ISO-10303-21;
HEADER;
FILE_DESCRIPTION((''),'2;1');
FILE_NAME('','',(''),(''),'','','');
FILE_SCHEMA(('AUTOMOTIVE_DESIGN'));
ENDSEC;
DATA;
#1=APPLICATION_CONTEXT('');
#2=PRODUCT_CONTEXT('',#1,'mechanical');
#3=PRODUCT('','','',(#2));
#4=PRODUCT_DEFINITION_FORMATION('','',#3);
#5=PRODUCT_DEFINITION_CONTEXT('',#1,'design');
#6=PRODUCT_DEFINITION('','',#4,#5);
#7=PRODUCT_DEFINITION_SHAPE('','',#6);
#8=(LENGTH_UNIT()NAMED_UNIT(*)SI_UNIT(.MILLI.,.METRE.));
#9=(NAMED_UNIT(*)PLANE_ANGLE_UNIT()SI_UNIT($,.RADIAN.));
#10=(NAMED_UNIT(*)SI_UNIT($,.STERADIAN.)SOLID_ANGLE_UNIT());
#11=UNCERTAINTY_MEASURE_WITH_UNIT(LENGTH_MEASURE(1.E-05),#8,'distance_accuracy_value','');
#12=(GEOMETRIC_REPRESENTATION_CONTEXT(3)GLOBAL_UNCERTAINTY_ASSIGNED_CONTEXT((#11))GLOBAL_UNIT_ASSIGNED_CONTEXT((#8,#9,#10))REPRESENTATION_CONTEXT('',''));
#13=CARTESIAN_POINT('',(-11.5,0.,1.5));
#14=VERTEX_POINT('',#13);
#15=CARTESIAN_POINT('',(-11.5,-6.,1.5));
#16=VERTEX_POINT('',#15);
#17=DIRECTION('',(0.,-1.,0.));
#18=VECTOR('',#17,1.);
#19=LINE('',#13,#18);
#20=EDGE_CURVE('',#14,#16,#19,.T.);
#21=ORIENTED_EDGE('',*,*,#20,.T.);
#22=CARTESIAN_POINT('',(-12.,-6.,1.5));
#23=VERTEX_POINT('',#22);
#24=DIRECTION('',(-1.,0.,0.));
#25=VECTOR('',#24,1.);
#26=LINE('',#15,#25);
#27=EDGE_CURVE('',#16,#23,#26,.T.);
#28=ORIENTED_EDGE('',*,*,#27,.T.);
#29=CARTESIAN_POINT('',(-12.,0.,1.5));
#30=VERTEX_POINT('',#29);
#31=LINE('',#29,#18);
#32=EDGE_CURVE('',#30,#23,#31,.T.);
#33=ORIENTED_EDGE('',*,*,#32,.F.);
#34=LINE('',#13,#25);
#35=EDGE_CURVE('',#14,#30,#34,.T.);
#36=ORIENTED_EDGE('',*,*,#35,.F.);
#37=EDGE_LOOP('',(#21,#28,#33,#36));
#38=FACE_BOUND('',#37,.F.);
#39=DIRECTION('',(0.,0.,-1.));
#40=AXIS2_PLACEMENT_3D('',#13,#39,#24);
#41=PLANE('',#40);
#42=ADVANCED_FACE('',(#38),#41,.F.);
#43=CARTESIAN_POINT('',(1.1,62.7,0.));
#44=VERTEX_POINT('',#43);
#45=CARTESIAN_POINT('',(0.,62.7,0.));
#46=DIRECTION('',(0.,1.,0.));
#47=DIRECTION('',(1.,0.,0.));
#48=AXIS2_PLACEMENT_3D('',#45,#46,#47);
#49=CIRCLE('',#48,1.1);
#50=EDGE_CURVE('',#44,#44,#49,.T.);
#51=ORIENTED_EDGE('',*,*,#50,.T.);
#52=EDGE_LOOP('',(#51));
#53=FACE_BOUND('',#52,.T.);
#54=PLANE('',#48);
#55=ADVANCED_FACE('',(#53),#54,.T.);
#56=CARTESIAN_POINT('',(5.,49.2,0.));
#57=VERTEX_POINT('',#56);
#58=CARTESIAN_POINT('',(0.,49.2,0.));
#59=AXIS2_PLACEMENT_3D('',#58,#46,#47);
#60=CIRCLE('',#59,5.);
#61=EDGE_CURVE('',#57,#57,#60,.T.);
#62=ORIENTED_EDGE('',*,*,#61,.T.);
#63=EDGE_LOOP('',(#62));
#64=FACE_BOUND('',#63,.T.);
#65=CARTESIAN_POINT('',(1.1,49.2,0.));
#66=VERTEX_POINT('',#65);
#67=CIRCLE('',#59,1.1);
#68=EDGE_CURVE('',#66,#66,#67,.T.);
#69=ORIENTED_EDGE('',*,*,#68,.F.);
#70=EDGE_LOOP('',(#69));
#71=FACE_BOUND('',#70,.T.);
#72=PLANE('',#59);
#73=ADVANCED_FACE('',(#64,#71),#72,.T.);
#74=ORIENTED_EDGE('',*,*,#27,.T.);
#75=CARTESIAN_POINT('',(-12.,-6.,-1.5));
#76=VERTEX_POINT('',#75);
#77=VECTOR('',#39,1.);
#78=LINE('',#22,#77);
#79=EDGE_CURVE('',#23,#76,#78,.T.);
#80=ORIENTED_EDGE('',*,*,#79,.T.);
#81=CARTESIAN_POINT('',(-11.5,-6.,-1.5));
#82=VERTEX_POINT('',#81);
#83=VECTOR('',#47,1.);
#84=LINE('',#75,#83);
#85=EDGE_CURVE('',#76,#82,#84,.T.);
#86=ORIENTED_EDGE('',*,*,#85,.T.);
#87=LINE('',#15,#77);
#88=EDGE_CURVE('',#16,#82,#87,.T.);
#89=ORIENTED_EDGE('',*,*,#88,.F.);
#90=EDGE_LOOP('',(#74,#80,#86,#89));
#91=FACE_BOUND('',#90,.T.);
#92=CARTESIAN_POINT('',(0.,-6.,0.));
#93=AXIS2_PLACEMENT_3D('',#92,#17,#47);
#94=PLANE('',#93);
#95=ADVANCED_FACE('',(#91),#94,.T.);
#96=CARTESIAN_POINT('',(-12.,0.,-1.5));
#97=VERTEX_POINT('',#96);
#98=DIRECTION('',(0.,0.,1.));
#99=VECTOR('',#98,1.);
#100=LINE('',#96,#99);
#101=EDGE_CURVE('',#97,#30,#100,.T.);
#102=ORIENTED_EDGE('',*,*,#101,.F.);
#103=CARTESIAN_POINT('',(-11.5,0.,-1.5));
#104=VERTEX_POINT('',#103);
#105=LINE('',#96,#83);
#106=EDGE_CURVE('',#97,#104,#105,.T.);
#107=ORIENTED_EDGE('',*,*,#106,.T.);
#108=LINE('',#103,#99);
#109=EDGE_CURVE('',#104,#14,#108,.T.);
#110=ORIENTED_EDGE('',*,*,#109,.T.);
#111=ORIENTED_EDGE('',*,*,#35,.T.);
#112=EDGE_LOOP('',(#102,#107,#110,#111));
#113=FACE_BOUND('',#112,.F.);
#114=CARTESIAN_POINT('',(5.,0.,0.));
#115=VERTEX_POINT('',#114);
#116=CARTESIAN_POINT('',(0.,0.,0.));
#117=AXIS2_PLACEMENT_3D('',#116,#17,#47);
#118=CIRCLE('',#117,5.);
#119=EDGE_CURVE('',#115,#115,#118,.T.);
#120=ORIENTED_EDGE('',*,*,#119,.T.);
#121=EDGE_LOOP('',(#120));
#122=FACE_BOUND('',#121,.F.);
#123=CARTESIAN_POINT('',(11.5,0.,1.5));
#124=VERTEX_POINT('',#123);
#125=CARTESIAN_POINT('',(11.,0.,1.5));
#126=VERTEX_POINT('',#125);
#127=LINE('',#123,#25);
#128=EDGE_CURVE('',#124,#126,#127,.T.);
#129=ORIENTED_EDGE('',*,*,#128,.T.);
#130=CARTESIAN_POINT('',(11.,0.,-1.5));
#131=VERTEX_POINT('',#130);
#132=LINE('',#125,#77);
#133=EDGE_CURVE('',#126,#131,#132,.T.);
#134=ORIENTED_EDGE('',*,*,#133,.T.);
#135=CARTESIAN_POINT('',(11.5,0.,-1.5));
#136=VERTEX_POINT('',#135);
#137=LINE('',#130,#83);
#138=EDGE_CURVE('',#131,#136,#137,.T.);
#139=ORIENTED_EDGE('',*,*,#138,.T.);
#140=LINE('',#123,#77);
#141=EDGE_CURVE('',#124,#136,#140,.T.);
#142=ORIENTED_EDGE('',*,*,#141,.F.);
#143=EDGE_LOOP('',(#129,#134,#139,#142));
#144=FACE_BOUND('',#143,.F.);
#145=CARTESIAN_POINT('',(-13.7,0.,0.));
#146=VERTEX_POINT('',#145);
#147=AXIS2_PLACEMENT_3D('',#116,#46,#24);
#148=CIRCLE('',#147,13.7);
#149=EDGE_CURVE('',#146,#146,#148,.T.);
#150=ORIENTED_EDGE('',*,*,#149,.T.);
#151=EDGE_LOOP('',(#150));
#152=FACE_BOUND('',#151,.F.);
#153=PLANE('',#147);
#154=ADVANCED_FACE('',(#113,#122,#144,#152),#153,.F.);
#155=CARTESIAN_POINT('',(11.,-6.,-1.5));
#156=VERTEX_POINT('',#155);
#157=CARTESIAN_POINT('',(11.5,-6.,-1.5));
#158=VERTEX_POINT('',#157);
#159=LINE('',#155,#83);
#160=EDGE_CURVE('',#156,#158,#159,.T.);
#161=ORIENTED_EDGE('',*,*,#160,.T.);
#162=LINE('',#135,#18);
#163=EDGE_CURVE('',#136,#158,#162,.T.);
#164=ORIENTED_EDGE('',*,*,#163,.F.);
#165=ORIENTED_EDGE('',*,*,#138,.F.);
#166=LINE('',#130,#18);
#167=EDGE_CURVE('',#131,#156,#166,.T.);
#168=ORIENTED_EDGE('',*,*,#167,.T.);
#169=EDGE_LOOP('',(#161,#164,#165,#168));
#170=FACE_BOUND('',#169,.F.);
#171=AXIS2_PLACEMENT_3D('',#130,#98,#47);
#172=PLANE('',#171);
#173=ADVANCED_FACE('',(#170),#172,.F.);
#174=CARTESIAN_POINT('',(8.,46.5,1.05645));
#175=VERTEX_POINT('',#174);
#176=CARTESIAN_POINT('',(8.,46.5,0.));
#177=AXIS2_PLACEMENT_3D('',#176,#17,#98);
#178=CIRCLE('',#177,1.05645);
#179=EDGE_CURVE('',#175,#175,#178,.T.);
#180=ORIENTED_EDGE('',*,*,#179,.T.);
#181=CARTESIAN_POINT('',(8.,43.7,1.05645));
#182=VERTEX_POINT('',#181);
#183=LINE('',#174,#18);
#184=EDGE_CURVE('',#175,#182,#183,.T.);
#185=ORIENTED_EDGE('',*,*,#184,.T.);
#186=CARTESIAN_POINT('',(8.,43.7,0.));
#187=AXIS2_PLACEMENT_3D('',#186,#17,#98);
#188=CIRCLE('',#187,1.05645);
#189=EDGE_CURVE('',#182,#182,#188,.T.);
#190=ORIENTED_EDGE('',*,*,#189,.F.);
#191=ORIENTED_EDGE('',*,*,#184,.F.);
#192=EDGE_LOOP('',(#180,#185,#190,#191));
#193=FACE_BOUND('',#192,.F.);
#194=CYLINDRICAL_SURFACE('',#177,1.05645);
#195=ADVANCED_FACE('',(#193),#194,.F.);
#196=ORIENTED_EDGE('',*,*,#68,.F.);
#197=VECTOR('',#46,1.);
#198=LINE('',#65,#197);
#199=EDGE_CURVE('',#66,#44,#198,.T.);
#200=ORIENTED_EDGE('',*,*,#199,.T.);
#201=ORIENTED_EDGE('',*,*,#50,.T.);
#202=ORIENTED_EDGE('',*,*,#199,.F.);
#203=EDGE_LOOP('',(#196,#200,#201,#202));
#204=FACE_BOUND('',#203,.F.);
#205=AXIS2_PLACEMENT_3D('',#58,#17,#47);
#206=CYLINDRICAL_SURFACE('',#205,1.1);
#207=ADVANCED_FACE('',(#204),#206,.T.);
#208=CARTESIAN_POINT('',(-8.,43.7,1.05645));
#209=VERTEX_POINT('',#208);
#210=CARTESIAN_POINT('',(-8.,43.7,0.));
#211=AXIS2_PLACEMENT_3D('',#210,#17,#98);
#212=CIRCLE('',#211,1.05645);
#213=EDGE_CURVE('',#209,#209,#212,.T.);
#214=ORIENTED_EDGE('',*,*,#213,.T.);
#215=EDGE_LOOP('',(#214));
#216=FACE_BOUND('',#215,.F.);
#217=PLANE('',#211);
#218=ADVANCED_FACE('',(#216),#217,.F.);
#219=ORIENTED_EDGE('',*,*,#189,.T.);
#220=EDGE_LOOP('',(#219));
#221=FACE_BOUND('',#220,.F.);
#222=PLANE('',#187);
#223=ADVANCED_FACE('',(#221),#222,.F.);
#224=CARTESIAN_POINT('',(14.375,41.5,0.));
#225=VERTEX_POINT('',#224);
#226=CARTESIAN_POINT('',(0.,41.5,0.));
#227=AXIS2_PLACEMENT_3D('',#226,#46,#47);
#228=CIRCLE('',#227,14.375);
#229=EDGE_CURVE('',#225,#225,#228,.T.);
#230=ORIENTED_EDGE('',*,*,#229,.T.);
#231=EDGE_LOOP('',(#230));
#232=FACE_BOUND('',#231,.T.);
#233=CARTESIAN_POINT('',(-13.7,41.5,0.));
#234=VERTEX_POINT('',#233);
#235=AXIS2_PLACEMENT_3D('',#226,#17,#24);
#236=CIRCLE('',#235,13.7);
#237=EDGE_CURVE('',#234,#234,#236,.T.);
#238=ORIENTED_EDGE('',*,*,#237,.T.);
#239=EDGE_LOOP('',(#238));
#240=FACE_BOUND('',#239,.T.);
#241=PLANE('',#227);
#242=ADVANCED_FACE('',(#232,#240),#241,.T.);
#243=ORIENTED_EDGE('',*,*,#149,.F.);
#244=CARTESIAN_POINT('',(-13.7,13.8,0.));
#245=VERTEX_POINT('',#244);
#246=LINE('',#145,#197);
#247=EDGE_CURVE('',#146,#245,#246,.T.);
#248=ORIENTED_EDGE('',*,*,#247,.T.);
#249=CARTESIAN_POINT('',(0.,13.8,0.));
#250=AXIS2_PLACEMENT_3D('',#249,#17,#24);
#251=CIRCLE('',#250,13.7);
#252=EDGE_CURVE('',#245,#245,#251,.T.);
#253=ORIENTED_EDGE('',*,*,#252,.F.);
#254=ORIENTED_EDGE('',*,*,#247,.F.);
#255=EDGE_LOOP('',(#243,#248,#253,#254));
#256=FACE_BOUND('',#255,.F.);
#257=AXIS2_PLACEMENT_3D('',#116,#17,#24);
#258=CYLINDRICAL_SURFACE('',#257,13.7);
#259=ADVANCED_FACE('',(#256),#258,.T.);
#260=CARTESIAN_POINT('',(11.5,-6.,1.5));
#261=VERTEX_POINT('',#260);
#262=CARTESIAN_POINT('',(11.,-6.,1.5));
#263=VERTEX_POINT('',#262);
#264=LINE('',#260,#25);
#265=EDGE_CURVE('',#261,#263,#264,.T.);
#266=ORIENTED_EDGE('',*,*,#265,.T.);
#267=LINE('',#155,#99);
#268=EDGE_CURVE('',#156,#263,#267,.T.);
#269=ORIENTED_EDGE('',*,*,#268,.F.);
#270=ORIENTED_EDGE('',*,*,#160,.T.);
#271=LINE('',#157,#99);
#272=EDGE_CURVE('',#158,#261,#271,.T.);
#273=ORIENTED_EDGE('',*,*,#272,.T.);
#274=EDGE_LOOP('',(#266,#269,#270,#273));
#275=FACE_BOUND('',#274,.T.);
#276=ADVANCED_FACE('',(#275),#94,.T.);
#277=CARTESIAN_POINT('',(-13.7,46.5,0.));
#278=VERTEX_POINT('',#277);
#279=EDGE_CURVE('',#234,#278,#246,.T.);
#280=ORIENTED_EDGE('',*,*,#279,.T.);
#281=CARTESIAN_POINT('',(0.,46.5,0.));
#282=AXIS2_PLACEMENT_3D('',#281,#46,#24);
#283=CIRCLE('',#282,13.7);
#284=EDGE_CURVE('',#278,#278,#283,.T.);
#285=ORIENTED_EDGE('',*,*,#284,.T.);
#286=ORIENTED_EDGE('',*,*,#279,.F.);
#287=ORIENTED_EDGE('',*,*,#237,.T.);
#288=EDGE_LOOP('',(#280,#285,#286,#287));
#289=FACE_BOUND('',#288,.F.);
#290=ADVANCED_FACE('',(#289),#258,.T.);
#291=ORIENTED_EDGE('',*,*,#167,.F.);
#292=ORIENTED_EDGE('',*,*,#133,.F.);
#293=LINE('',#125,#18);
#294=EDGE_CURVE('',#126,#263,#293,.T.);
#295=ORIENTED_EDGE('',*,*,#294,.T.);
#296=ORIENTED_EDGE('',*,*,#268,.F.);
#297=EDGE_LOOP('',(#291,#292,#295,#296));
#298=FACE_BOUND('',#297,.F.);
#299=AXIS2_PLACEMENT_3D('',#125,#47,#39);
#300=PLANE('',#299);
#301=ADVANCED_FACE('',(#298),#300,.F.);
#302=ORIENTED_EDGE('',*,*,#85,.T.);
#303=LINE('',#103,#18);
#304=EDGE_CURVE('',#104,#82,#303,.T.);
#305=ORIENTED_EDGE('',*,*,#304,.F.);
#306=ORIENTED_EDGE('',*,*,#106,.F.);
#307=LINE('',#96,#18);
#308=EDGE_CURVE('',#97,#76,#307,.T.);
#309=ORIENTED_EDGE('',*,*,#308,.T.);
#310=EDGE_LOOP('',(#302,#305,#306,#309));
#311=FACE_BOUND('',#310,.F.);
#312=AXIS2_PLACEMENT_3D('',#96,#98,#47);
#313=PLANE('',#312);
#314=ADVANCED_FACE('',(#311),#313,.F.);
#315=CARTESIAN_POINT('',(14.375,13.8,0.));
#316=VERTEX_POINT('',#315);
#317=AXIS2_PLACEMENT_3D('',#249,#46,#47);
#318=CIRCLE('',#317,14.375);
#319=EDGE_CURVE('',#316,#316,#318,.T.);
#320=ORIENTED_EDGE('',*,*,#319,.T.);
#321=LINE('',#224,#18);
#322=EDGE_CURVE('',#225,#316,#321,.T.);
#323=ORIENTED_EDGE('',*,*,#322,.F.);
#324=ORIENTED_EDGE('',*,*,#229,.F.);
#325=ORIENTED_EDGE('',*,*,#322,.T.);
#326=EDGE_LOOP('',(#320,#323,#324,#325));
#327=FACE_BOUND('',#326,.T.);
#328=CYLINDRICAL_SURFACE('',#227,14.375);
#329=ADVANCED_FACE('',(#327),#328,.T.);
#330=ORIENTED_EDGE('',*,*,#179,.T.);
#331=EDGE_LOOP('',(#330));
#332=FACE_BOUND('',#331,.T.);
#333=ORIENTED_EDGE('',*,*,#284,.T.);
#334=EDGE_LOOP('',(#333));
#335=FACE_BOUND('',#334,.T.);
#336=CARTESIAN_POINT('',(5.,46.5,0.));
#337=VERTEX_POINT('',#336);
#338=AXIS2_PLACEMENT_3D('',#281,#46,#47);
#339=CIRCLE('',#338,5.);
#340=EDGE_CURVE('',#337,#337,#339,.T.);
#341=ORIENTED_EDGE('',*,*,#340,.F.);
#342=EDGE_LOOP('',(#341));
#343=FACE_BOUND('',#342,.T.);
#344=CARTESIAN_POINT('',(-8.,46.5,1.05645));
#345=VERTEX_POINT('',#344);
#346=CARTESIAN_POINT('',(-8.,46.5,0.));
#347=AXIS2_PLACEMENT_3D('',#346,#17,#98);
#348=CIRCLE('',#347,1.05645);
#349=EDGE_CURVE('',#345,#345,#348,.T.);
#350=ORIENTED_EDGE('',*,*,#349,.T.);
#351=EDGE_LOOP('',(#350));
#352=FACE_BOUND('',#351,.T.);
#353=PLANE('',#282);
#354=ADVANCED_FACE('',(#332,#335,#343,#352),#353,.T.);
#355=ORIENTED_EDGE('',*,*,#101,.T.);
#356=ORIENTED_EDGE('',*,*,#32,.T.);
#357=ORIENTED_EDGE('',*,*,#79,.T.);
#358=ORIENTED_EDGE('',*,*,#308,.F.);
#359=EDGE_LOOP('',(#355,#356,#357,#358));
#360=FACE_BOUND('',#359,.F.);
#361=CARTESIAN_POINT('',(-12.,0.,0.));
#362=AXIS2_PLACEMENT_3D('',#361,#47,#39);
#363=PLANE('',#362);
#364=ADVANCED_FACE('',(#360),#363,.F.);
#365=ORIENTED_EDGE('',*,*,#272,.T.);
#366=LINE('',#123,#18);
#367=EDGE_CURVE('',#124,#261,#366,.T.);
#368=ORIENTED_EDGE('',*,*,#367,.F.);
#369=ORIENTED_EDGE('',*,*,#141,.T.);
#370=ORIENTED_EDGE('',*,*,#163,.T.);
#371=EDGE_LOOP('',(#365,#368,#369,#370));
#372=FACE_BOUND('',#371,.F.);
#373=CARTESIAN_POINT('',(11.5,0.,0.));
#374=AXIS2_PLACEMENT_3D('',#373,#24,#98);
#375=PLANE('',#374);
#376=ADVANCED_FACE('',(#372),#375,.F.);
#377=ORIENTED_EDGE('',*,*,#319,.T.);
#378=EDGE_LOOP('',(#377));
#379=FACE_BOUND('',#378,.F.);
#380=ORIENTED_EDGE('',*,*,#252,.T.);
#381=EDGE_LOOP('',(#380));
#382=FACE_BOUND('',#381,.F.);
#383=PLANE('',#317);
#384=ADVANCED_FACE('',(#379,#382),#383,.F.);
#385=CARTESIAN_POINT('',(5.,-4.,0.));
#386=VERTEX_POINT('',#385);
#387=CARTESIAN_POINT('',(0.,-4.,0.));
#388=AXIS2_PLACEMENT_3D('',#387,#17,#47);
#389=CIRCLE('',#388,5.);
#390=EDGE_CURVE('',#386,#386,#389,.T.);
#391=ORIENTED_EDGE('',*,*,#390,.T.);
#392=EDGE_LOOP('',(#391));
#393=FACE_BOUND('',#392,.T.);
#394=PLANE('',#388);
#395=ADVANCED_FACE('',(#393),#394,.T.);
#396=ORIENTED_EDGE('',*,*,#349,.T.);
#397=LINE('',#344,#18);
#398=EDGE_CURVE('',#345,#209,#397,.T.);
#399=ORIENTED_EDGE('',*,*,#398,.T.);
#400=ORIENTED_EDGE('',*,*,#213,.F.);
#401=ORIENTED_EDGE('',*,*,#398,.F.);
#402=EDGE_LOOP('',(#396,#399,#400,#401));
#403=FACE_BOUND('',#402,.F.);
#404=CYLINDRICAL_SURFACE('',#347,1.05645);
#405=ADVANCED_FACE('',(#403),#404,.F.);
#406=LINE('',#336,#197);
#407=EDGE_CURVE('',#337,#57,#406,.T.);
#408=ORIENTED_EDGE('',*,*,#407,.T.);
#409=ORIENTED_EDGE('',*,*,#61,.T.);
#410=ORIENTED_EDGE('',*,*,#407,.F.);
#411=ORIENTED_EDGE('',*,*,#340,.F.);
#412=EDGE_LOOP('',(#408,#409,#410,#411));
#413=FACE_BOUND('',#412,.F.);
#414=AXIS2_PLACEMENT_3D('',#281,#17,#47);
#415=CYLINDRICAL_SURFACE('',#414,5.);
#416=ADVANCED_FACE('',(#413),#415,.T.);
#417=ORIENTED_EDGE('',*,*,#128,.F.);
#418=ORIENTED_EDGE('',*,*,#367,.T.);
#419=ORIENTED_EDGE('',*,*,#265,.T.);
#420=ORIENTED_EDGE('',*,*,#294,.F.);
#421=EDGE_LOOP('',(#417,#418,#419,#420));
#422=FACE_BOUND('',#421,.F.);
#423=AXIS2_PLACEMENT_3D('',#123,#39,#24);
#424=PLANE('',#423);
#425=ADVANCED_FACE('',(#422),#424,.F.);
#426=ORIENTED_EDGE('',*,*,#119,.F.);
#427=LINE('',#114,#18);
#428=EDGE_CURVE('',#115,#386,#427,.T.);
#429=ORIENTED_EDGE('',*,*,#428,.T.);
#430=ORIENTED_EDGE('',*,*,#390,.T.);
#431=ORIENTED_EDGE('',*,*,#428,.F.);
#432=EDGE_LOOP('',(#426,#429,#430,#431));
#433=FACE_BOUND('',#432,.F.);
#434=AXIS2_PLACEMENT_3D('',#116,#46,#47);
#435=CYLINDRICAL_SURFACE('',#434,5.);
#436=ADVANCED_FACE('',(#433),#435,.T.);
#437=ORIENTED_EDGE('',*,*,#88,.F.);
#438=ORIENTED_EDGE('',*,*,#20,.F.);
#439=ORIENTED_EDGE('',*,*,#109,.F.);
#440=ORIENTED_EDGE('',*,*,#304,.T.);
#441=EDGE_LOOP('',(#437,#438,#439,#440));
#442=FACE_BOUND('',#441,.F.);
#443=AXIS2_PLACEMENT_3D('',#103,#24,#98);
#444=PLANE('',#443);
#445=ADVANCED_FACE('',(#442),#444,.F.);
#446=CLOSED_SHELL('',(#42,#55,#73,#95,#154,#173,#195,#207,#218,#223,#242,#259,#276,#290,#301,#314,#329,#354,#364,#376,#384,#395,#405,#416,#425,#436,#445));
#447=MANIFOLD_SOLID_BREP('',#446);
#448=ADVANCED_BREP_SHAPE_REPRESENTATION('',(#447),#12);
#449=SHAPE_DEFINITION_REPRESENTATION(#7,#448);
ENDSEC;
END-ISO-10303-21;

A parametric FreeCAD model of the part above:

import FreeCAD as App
import Part
import Sketcher
from FreeCAD import Vector
Q = App.Units.Quantity


def add_polygon(sketch, points):
    """Adds a closed chain of lines whose ends are joined by coincident constraints."""
    first, n = sketch.GeometryCount, len(points)
    for a, b in zip(points, points[1:] + points[:1]):
        sketch.addGeometry(Part.LineSegment(App.Vector(*a, 0), App.Vector(*b, 0)), False)
    for i in range(n):
        sketch.addConstraint(Sketcher.Constraint("Coincident", first + i, 2, first + (i + 1) % n, 1))

doc = App.newDocument("Part")
params = doc.addObject("Spreadsheet::Sheet", "Params")
for row, (alias, value) in enumerate([
    ("sketch1_diameter", "27.4 mm"),
    ("pad1_length", "46.5 mm"),
    ("sketch2_diameter", "10 mm"),
    ("pad2_length", "2.7 mm"),
    ("hole_diameter", "2.1129 mm"),
    ("hole_depth", "2.8 mm"),
    ("sketch4_diameter", "28.75 mm"),
    ("pad3_length", "27.7 mm"),
    ("sketch5_diameter", "10 mm"),
    ("pad4_length", "4 mm"),
    ("sketch6_height", "3 mm"),
    ("sketch6_width", "0.5 mm"),
    ("pad5_length", "6 mm"),
    ("sketch7_diameter", "2.2 mm"),
    ("pad6_length", "13.5 mm"),
], start=1):
    params.set(f"A{row}", alias)
    params.set(f"B{row}", "=" + value)
    params.setAlias(f"B{row}", alias)

body = doc.addObject("PartDesign::Body", "Body")

sketch1 = body.newObject("Sketcher::SketchObject", "Sketch")
sketch1.AttachmentSupport = (doc.getObject("XZ_Plane"), [""])
sketch1.MapMode = "FlatFace"
sketch1.addGeometry(Part.Circle(Vector(0, 0, 0), Vector(0, 0, 1), 14), False)
sketch1.addConstraint([
    Sketcher.Constraint("Coincident", 0, 3, -1, 1),
    Sketcher.Constraint("Diameter", 0, Q("27.4 mm")),
])
sketch1.setExpression("Constraints[1]", "Params.sketch1_diameter")
pad1 = body.newObject("PartDesign::Pad", "Pad")
pad1.Profile = sketch1
pad1.setExpression("Length", "Params.pad1_length")
pad1.Reversed = True

sketch2 = body.newObject("Sketcher::SketchObject", "Sketch001")
sketch2.AttachmentSupport = (doc.getObject("XZ_Plane"), [""])
sketch2.MapMode = "FlatFace"
sketch2.AttachmentOffset = App.Placement(Vector(0, 0, -46.5), App.Rotation())
sketch2.addGeometry(Part.Circle(Vector(0, 0, 0), Vector(0, 0, 1), 5), False)
sketch2.addConstraint([
    Sketcher.Constraint("Coincident", 0, 3, -1, 1),
    Sketcher.Constraint("Diameter", 0, Q("10 mm")),
])
sketch2.setExpression("Constraints[1]", "Params.sketch2_diameter")
pad2 = body.newObject("PartDesign::Pad", "Pad001")
pad2.Profile = sketch2
pad2.setExpression("Length", "Params.pad2_length")
pad2.Reversed = True

sketch3 = body.newObject("Sketcher::SketchObject", "Sketch002")
sketch3.AttachmentSupport = (doc.getObject("XZ_Plane"), [""])
sketch3.MapMode = "FlatFace"
sketch3.AttachmentOffset = App.Placement(Vector(0, 0, -46.5), App.Rotation())
sketch3.addGeometry([
    Part.Circle(Vector(-8, 0, 0), Vector(0, 0, 1), 1.1),
    Part.Circle(Vector(8, 0, 0), Vector(0, 0, 1), 1.1),
], False)
sketch3.addConstraint([
    Sketcher.Constraint("Equal", 0, 1),
    Sketcher.Constraint("Symmetric", 0, 3, 1, 3, -1, 1),
    Sketcher.Constraint("PointOnObject", 0, 3, -1),
    Sketcher.Constraint("Diameter", 0, Q("2.113 mm")),
    Sketcher.Constraint("DistanceX", 0, 3, -1, 1, Q("8 mm")),
])
doc.recompute()
hole = body.newObject("PartDesign::Hole", "Hole")
hole.Profile = sketch3
hole.ThreadType = "None"
hole.setExpression("Diameter", "Params.hole_diameter")
hole.DepthType = "Dimension"
hole.setExpression("Depth", "Params.hole_depth")
hole.DrillPoint = "Flat"
hole.Reversed = True

sketch4 = body.newObject("Sketcher::SketchObject", "Sketch003")
sketch4.AttachmentSupport = (doc.getObject("XZ_Plane"), [""])
sketch4.MapMode = "FlatFace"
sketch4.AttachmentOffset = App.Placement(Vector(0, 0, -41.5), App.Rotation())
sketch4.addGeometry(Part.Circle(Vector(0, 0, 0), Vector(0, 0, 1), 14), False)
sketch4.addConstraint([
    Sketcher.Constraint("Coincident", 0, 3, -1, 1),
    Sketcher.Constraint("Diameter", 0, Q("28.75 mm")),
])
sketch4.setExpression("Constraints[1]", "Params.sketch4_diameter")
pad3 = body.newObject("PartDesign::Pad", "Pad002")
pad3.Profile = sketch4
pad3.setExpression("Length", "Params.pad3_length")

sketch5 = body.newObject("Sketcher::SketchObject", "Sketch004")
sketch5.AttachmentSupport = (doc.getObject("XZ_Plane"), [""])
sketch5.MapMode = "FlatFace"
sketch5.addGeometry(Part.Circle(Vector(0, 0, 0), Vector(0, 0, 1), 5), False)
sketch5.addConstraint([
    Sketcher.Constraint("Coincident", 0, 3, -1, 1),
    Sketcher.Constraint("Diameter", 0, Q("10 mm")),
])
sketch5.setExpression("Constraints[1]", "Params.sketch5_diameter")
pad4 = body.newObject("PartDesign::Pad", "Pad003")
pad4.Profile = sketch5
pad4.setExpression("Length", "Params.pad4_length")

sketch6 = body.newObject("Sketcher::SketchObject", "Sketch005")
sketch6.AttachmentSupport = (doc.getObject("XZ_Plane"), [""])
sketch6.MapMode = "FlatFace"
add_polygon(sketch6, [(11, 1.5), (11, -1.5), (11.5, -1.5), (11.5, 1.5)])
add_polygon(sketch6, [(-11.5, -1.5), (-11.5, 1.5), (-12, 1.5), (-12, -1.5)])
sketch6.addConstraint([
    Sketcher.Constraint("Vertical", 0),
    Sketcher.Constraint("Horizontal", 1),
    Sketcher.Constraint("Vertical", 2),
    Sketcher.Constraint("Horizontal", 3),
    Sketcher.Constraint("Vertical", 4),
    Sketcher.Constraint("Horizontal", 5),
    Sketcher.Constraint("Vertical", 6),
    Sketcher.Constraint("Horizontal", 7),
    Sketcher.Constraint("Symmetric", 1, 2, 4, 2, -1, 1),
    Sketcher.Constraint("Horizontal", 3, 2, 4, 2),
    Sketcher.Constraint("Horizontal", 1, 2, 6, 2),
    Sketcher.Constraint("Equal", 3, 5),
    Sketcher.Constraint("DistanceY", 0, 2, 0, 1, Q("3 mm")),
    Sketcher.Constraint("DistanceX", 1, 1, 1, 2, Q("0.5 mm")),
    Sketcher.Constraint("DistanceX", -1, 1, 1, 2, Q("11.5 mm")),
])
sketch6.setExpression("Constraints[20]", "Params.sketch6_height")
sketch6.setExpression("Constraints[21]", "Params.sketch6_width")
pad5 = body.newObject("PartDesign::Pad", "Pad004")
pad5.Profile = sketch6
pad5.setExpression("Length", "Params.pad5_length")

sketch7 = body.newObject("Sketcher::SketchObject", "Sketch006")
sketch7.AttachmentSupport = (doc.getObject("XZ_Plane"), [""])
sketch7.MapMode = "FlatFace"
sketch7.AttachmentOffset = App.Placement(Vector(0, 0, -49.2), App.Rotation())
sketch7.addGeometry(Part.Circle(Vector(0, 0, 0), Vector(0, 0, 1), 1.1), False)
sketch7.addConstraint([
    Sketcher.Constraint("Coincident", 0, 3, -1, 1),
    Sketcher.Constraint("Diameter", 0, Q("2.2 mm")),
])
sketch7.setExpression("Constraints[1]", "Params.sketch7_diameter")
pad6 = body.newObject("PartDesign::Pad", "Pad005")
pad6.Profile = sketch7
pad6.setExpression("Length", "Params.pad6_length")
pad6.Reversed = True

doc.recompute()
